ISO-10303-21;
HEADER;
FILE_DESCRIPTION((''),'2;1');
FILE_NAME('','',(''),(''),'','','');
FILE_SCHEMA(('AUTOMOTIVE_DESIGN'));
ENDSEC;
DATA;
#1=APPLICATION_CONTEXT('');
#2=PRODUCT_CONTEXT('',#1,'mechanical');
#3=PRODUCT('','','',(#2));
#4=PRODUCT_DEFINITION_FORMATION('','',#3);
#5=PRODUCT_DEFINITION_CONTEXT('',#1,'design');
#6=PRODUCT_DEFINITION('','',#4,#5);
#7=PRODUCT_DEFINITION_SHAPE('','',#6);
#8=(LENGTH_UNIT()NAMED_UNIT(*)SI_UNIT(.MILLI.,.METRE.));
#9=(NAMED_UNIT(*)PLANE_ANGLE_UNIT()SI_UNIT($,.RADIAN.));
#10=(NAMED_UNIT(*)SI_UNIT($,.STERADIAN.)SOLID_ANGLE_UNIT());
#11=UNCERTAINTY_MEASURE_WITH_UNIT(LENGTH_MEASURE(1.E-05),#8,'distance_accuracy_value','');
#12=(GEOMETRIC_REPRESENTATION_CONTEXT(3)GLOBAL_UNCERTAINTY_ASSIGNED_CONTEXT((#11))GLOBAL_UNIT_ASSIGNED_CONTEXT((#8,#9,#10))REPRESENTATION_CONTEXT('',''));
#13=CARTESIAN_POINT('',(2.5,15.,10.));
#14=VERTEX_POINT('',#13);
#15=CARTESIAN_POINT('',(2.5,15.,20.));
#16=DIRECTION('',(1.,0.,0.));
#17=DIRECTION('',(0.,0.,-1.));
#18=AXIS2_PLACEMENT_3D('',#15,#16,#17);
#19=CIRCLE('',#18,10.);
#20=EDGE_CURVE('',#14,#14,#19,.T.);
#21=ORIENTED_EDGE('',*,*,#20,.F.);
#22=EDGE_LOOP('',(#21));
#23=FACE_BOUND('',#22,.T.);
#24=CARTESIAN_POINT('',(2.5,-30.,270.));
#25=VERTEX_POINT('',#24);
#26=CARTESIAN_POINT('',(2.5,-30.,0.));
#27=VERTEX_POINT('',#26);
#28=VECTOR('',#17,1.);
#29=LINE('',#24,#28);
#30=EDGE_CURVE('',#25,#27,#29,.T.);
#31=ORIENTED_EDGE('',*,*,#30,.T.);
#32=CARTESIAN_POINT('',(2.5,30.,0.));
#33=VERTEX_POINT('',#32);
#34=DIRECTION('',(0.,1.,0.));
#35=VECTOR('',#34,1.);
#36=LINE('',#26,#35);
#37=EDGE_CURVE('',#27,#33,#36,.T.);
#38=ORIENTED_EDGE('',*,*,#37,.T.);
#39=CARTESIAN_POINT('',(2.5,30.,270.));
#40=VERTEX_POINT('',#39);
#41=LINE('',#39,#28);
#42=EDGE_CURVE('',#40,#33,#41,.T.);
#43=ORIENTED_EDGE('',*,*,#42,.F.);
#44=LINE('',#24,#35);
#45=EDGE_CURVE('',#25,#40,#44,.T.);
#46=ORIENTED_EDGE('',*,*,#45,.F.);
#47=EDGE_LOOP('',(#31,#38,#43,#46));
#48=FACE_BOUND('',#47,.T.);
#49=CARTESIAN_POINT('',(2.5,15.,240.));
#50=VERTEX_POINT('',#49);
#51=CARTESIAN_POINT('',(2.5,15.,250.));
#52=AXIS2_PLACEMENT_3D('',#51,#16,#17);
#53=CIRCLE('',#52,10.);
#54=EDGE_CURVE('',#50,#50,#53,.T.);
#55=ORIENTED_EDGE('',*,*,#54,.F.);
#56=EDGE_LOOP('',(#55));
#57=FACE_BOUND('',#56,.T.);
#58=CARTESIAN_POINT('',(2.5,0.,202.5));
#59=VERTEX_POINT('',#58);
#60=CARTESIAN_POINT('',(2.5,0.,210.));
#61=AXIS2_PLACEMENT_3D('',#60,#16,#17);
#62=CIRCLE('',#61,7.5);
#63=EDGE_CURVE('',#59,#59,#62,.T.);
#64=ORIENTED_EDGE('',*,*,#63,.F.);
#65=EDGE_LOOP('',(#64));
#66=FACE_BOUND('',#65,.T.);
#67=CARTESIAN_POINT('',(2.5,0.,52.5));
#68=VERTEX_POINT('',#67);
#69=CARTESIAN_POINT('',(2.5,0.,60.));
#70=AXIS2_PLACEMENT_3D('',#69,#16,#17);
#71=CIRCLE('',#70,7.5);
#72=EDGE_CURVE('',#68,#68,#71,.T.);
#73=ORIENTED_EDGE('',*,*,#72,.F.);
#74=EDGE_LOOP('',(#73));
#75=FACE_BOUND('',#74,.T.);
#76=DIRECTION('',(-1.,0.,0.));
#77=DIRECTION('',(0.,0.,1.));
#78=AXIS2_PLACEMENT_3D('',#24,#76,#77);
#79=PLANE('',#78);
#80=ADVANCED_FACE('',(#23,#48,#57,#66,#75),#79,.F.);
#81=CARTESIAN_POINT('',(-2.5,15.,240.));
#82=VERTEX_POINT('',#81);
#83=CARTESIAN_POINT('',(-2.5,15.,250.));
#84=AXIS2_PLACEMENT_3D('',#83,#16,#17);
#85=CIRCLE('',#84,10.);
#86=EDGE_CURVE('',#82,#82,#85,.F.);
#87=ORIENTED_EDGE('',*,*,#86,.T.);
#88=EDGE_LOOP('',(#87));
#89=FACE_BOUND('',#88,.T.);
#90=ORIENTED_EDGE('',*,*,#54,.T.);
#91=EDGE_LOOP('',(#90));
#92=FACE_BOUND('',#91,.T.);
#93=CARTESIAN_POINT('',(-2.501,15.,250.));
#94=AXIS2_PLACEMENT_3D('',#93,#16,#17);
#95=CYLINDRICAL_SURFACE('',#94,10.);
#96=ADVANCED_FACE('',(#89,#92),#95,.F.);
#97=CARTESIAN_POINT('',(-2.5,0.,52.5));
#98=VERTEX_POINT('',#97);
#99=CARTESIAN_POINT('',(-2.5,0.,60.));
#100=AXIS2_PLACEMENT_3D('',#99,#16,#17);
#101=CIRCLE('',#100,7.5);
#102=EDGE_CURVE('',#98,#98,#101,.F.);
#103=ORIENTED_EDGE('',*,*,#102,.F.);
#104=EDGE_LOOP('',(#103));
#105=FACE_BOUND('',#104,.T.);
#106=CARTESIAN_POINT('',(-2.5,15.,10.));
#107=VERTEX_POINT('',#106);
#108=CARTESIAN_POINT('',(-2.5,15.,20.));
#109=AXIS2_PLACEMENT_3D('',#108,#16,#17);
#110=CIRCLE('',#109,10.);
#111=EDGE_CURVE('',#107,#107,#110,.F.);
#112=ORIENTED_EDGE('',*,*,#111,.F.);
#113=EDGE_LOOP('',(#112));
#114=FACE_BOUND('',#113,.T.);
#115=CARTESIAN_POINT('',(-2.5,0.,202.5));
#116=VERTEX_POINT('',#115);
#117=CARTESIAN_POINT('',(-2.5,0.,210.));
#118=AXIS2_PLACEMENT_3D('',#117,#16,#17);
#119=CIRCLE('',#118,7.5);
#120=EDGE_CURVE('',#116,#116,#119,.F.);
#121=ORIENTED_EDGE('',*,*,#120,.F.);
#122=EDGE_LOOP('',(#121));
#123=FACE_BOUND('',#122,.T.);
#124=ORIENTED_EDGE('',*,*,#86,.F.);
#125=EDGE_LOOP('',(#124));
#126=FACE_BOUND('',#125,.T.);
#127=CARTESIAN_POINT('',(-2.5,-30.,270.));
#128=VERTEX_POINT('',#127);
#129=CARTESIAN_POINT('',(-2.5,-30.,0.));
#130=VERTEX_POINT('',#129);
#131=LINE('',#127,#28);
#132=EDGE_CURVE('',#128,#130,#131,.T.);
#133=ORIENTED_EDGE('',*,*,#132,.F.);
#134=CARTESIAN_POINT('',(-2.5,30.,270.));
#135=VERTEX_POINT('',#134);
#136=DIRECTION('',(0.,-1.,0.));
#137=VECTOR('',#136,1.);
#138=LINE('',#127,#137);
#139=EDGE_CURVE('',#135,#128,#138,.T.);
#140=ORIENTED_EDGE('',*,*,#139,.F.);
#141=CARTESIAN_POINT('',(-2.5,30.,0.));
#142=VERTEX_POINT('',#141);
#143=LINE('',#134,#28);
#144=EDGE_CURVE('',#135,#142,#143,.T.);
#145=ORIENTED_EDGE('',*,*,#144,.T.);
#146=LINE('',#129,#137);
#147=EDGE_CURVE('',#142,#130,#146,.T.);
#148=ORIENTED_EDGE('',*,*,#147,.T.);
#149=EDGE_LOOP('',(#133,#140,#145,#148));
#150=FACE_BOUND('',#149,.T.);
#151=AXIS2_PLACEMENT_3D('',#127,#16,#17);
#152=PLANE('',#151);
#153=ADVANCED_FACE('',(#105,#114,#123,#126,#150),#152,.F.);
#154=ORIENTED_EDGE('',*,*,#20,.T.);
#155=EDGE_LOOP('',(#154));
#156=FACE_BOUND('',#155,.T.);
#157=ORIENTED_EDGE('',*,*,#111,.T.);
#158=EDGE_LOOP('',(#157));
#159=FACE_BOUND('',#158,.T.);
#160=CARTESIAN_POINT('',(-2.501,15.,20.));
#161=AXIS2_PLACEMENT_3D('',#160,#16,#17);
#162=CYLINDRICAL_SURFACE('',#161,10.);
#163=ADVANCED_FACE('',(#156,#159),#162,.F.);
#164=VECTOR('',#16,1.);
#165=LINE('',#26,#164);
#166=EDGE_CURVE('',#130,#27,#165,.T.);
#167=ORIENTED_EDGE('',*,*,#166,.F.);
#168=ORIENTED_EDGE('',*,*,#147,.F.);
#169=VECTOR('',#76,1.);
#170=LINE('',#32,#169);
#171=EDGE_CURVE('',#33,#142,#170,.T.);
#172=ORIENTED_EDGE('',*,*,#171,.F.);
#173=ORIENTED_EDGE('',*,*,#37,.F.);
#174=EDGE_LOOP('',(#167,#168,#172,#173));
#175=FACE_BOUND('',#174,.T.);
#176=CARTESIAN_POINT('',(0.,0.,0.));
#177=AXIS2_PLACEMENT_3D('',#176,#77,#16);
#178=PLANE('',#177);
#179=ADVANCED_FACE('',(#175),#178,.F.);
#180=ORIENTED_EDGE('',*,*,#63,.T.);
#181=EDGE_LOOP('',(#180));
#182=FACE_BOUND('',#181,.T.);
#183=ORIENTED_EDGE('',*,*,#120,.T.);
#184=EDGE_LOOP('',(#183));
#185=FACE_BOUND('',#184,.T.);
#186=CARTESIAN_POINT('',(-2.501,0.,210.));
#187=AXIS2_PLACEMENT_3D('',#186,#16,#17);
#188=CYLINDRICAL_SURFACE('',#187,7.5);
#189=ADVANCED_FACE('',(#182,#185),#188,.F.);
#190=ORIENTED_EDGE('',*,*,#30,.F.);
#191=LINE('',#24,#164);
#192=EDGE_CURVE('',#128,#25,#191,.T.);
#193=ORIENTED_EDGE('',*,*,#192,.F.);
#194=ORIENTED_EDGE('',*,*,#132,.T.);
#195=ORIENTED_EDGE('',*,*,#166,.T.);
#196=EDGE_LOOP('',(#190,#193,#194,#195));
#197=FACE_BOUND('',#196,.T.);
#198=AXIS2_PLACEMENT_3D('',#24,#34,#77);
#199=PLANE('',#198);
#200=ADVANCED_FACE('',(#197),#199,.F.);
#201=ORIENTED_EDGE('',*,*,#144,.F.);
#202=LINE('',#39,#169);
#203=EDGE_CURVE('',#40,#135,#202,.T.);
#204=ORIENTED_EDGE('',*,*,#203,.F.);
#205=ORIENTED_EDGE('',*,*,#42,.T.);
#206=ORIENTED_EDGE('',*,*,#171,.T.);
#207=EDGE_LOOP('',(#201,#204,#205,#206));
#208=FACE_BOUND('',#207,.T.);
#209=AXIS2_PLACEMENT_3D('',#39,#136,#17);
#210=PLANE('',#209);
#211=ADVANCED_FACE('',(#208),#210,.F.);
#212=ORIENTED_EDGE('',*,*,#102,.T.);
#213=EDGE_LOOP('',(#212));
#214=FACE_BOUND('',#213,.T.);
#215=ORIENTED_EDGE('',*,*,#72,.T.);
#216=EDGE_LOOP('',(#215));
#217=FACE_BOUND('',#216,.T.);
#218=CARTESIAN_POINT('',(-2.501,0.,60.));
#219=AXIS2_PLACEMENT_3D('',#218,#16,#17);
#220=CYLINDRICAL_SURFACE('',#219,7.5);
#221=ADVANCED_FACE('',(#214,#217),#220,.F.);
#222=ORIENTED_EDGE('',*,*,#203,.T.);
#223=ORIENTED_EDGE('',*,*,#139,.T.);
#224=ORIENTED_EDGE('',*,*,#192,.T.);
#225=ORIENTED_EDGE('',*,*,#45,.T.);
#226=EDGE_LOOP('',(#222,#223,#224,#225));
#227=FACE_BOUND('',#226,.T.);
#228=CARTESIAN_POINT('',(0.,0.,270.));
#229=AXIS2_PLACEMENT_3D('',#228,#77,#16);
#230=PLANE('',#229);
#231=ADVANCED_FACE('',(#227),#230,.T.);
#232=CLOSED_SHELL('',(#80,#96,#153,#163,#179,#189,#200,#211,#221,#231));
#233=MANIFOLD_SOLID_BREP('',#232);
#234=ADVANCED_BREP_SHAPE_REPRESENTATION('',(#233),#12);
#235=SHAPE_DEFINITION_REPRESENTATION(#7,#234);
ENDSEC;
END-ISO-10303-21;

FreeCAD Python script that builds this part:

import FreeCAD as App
import Part
import Sketcher
Q = App.Units.Quantity


def add_polygon(sketch, points):
    """Adds a closed chain of lines whose ends are joined by coincident constraints."""
    first, n = sketch.GeometryCount, len(points)
    for a, b in zip(points, points[1:] + points[:1]):
        sketch.addGeometry(Part.LineSegment(App.Vector(*a, 0), App.Vector(*b, 0)), False)
    for i in range(n):
        sketch.addConstraint(Sketcher.Constraint("Coincident", first + i, 2, first + (i + 1) % n, 1))

doc = App.newDocument("Part")
body = doc.addObject("PartDesign::Body", "Body")

# Sketch on XY plane
sketch1 = doc.addObject("Sketcher::SketchObject", "Sketch")
body.addObject(sketch1)
sketch1.AttachmentSupport = (doc.XY_Plane, [""])
sketch1.MapMode = "FlatFace"
add_polygon(sketch1, [(-2.5, 30), (-2.5, -30), (2.5, -30), (2.5, 30)])  # lines 0-3
sketch1.addConstraint([
    Sketcher.Constraint("Vertical", 0),
    Sketcher.Constraint("Horizontal", 1),
    Sketcher.Constraint("Vertical", 2),
    Sketcher.Constraint("Horizontal", 3),
    Sketcher.Constraint("Symmetric", 0, 2, 2, 2, -1, 1),
    Sketcher.Constraint("DistanceX", 1, 1, 1, 2, Q("5 mm")),
    Sketcher.Constraint("DistanceY", 0, 2, 0, 1, Q("60 mm")),
])
pad1 = doc.addObject("PartDesign::Pad", "Pad")
body.addObject(pad1)
pad1.Profile = sketch1
pad1.Length = 270

# Sketch on YZ plane
sketch2 = doc.addObject("Sketcher::SketchObject", "Sketch001")
body.addObject(sketch2)
sketch2.AttachmentSupport = (doc.YZ_Plane, [""])
sketch2.MapMode = "FlatFace"
sketch2.AttachmentOffset = App.Placement(App.Vector(0, 0, 2.5), App.Rotation())
sketch2.addGeometry(Part.Circle(App.Vector(0, 60, 0), App.Vector(0, 0, 1), 7.5), False)
sketch2.addConstraint([
    Sketcher.Constraint("PointOnObject", 0, 3, -2),
    Sketcher.Constraint("Diameter", 0, Q("15 mm")),
    Sketcher.Constraint("DistanceY", -1, 1, 0, 3, Q("60 mm")),
])
pocket1 = doc.addObject("PartDesign::Pocket", "Pocket")
body.addObject(pocket1)
pocket1.Profile = sketch2
pocket1.Type = "UpToFirst"

# Sketch on YZ plane
sketch3 = doc.addObject("Sketcher::SketchObject", "Sketch002")
body.addObject(sketch3)
sketch3.AttachmentSupport = (doc.YZ_Plane, [""])
sketch3.MapMode = "FlatFace"
sketch3.AttachmentOffset = App.Placement(App.Vector(0, 0, 2.5), App.Rotation())
sketch3.addGeometry(Part.Circle(App.Vector(0, 210, 0), App.Vector(0, 0, 1), 7.5), False)
sketch3.addConstraint([
    Sketcher.Constraint("PointOnObject", 0, 3, -2),
    Sketcher.Constraint("Diameter", 0, Q("15 mm")),
    Sketcher.Constraint("DistanceY", -1, 1, 0, 3, Q("210 mm")),
])
pocket2 = doc.addObject("PartDesign::Pocket", "Pocket001")
body.addObject(pocket2)
pocket2.Profile = sketch3
pocket2.Type = "UpToFirst"

# Sketch on YZ plane
sketch4 = doc.addObject("Sketcher::SketchObject", "Sketch003")
body.addObject(sketch4)
sketch4.AttachmentSupport = (doc.YZ_Plane, [""])
sketch4.MapMode = "FlatFace"
sketch4.AttachmentOffset = App.Placement(App.Vector(0, 0, 2.5), App.Rotation())
sketch4.addGeometry(Part.Circle(App.Vector(15, 250, 0), App.Vector(0, 0, 1), 10), False)
sketch4.addConstraint([
    Sketcher.Constraint("Diameter", 0, Q("20 mm")),
    Sketcher.Constraint("DistanceX", -1, 1, 0, 3, Q("15 mm")),
    Sketcher.Constraint("DistanceY", -1, 1, 0, 3, Q("250 mm")),
])
pocket3 = doc.addObject("PartDesign::Pocket", "Pocket002")
body.addObject(pocket3)
pocket3.Profile = sketch4
pocket3.Type = "UpToFirst"

# Sketch on YZ plane
sketch5 = doc.addObject("Sketcher::SketchObject", "Sketch004")
body.addObject(sketch5)
sketch5.AttachmentSupport = (doc.YZ_Plane, [""])
sketch5.MapMode = "FlatFace"
sketch5.AttachmentOffset = App.Placement(App.Vector(0, 0, 2.5), App.Rotation())
sketch5.addGeometry(Part.Circle(App.Vector(15, 20, 0), App.Vector(0, 0, 1), 10), False)
sketch5.addConstraint([
    Sketcher.Constraint("Diameter", 0, Q("20 mm")),
    Sketcher.Constraint("DistanceX", -1, 1, 0, 3, Q("15 mm")),
    Sketcher.Constraint("DistanceY", -1, 1, 0, 3, Q("20 mm")),
])
pocket4 = doc.addObject("PartDesign::Pocket", "Pocket003")
body.addObject(pocket4)
pocket4.Profile = sketch5
pocket4.Type = "UpToFirst"

doc.recompute()
